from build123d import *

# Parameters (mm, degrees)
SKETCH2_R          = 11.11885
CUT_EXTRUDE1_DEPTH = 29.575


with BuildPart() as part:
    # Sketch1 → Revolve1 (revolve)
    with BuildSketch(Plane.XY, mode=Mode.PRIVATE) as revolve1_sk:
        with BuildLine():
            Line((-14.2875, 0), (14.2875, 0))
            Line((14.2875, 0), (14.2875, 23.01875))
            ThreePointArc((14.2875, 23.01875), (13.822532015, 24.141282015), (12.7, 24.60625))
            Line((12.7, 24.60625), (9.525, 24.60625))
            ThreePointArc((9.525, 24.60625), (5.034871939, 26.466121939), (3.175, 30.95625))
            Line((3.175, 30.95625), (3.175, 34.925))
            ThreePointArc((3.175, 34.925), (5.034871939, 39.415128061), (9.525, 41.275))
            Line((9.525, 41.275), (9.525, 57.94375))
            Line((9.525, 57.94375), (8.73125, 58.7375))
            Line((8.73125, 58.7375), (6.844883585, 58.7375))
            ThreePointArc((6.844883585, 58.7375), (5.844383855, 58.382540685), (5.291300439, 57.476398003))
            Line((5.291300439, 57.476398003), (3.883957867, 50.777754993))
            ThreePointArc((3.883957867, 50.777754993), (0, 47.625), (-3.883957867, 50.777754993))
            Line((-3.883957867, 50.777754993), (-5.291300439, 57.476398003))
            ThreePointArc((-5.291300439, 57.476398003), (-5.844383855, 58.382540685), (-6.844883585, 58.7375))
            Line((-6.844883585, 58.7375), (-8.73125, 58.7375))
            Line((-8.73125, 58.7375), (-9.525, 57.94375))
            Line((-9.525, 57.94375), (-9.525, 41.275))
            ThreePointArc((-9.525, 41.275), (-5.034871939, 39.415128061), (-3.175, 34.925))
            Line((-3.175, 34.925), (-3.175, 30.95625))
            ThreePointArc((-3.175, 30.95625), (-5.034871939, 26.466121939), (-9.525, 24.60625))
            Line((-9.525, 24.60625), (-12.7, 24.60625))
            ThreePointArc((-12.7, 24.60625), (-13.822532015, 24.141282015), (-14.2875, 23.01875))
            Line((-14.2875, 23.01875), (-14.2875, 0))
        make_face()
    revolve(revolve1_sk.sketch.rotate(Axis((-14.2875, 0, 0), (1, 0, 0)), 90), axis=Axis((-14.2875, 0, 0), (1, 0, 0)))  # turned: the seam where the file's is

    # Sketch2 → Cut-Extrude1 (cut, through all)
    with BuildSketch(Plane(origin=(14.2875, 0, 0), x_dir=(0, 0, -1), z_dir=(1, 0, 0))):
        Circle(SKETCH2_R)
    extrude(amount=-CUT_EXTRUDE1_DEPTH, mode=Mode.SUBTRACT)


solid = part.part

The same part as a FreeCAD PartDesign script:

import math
import FreeCAD as App
import Part
import Sketcher

V = App.Vector
Q = App.Units.Quantity

doc = App.newDocument("Part")
body = doc.addObject("PartDesign::Body", "Body")

# Sketch on XY plane
sketch1 = doc.addObject("Sketcher::SketchObject", "Sketch")
body.addObject(sketch1)
sketch1.AttachmentSupport = (doc.XY_Plane, [""])
sketch1.MapMode = "FlatFace"
sketch1.addGeometry([
    Part.LineSegment(V(-14.2875, 0, 0), V(14.2875, 0, 0)),  # 0
    Part.LineSegment(V(14.2875, 0, 0), V(14.2875, 23.01875, 0)),  # 1
    Part.ArcOfCircle(Part.Circle(V(12.7, 23.01875, 0), V(0, 0, 1), 1.5875), math.radians(0), math.radians(90)),  # 2
    Part.LineSegment(V(12.7, 24.60625, 0), V(9.525, 24.60625, 0)),  # 3
    Part.ArcOfCircle(Part.Circle(V(9.525, 30.95625, 0), V(0, 0, 1), 6.35), math.radians(180), math.radians(270)),  # 4
    Part.LineSegment(V(3.175, 30.95625, 0), V(3.175, 34.925, 0)),  # 5
    Part.ArcOfCircle(Part.Circle(V(9.525, 34.925, 0), V(0, 0, 1), 6.35), math.radians(90), math.radians(180)),  # 6
    Part.LineSegment(V(9.525, 41.275, 0), V(9.525, 57.94375, 0)),  # 7
    Part.LineSegment(V(9.525, 57.94375, 0), V(8.73125, 58.7375, 0)),  # 8
    Part.LineSegment(V(8.73125, 58.7375, 0), V(6.844884, 58.7375, 0)),  # 9
    Part.ArcOfCircle(Part.Circle(V(6.844884, 57.15, 0), V(0, 0, 1), 1.5875), math.radians(90), math.radians(168.13508)),  # 10
    Part.LineSegment(V(5.2913, 57.476398, 0), V(3.883958, 50.777755, 0)),  # 11
    Part.ArcOfCircle(Part.Circle(V(0, 51.59375, 0), V(0, 0, 1), 3.96875), math.radians(-168.13508), math.radians(-11.86492)),  # 12
    Part.LineSegment(V(-3.883958, 50.777755, 0), V(-5.2913, 57.476398, 0)),  # 13
    Part.ArcOfCircle(Part.Circle(V(-6.844884, 57.15, 0), V(0, 0, 1), 1.5875), math.radians(11.86492), math.radians(90)),  # 14
    Part.LineSegment(V(-6.844884, 58.7375, 0), V(-8.73125, 58.7375, 0)),  # 15
    Part.LineSegment(V(-8.73125, 58.7375, 0), V(-9.525, 57.94375, 0)),  # 16
    Part.LineSegment(V(-9.525, 57.94375, 0), V(-9.525, 41.275, 0)),  # 17
    Part.ArcOfCircle(Part.Circle(V(-9.525, 34.925, 0), V(0, 0, 1), 6.35), math.radians(0), math.radians(90)),  # 18
    Part.LineSegment(V(-3.175, 34.925, 0), V(-3.175, 30.95625, 0)),  # 19
    Part.ArcOfCircle(Part.Circle(V(-9.525, 30.95625, 0), V(0, 0, 1), 6.35), math.radians(-90), math.radians(0)),  # 20
    Part.LineSegment(V(-9.525, 24.60625, 0), V(-12.7, 24.60625, 0)),  # 21
    Part.ArcOfCircle(Part.Circle(V(-12.7, 23.01875, 0), V(0, 0, 1), 1.5875), math.radians(90), math.radians(180)),  # 22
    Part.LineSegment(V(-14.2875, 23.01875, 0), V(-14.2875, 0, 0)),  # 23
], False)
sketch1.addConstraint([
    Sketcher.Constraint("Coincident", 0, 2, 1, 1),
    Sketcher.Constraint("Tangent", 1, 2, 2, 1),
    Sketcher.Constraint("Tangent", 2, 2, 3, 1),
    Sketcher.Constraint("Tangent", 3, 2, 4, 2),
    Sketcher.Constraint("Tangent", 4, 1, 5, 1),
    Sketcher.Constraint("Tangent", 5, 2, 6, 2),
    Sketcher.Constraint("Coincident", 6, 1, 7, 1),
    Sketcher.Constraint("Coincident", 7, 2, 8, 1),
    Sketcher.Constraint("Coincident", 8, 2, 9, 1),
    Sketcher.Constraint("Tangent", 9, 2, 10, 1),
    Sketcher.Constraint("Tangent", 10, 2, 11, 1),
    Sketcher.Constraint("Tangent", 11, 2, 12, 2),
    Sketcher.Constraint("Tangent", 12, 1, 13, 1),
    Sketcher.Constraint("Tangent", 13, 2, 14, 1),
    Sketcher.Constraint("Tangent", 14, 2, 15, 1),
    Sketcher.Constraint("Coincident", 15, 2, 16, 1),
    Sketcher.Constraint("Coincident", 16, 2, 17, 1),
    Sketcher.Constraint("Coincident", 17, 2, 18, 2),
    Sketcher.Constraint("Tangent", 18, 1, 19, 1),
    Sketcher.Constraint("Tangent", 19, 2, 20, 2),
    Sketcher.Constraint("Tangent", 20, 1, 21, 1),
    Sketcher.Constraint("Tangent", 21, 2, 22, 1),
    Sketcher.Constraint("Tangent", 22, 2, 23, 1),
    Sketcher.Constraint("Coincident", 23, 2, 0, 1),
    Sketcher.Constraint("Horizontal", 0),
    Sketcher.Constraint("Vertical", 1),
    Sketcher.Constraint("Horizontal", 3),
    Sketcher.Constraint("Vertical", 5),
    Sketcher.Constraint("Vertical", 7),
    Sketcher.Constraint("Horizontal", 9),
    Sketcher.Constraint("Horizontal", 15),
    Sketcher.Constraint("Vertical", 17),
    Sketcher.Constraint("Vertical", 19),
    Sketcher.Constraint("Horizontal", 21),
    Sketcher.Constraint("Vertical", 23),
    Sketcher.Constraint("Equal", 4, 6),
    Sketcher.Constraint("Equal", 2, 10),
    Sketcher.Constraint("Equal", 10, 14),
    Sketcher.Constraint("Equal", 6, 18),
    Sketcher.Constraint("Equal", 18, 20),
    Sketcher.Constraint("Equal", 14, 22),
    Sketcher.Constraint("Symmetric", 0, 2, 23, 2, -1, 1),
    Sketcher.Constraint("Symmetric", 10, 3, 14, 3, -2),
    Sketcher.Constraint("Symmetric", 6, 3, 18, 3, -2),
    Sketcher.Constraint("Symmetric", 7, 2, 16, 2, -2),
    Sketcher.Constraint("PointOnObject", 12, 3, -2),
    Sketcher.Constraint("Perpendicular", 8, 16),
    Sketcher.Constraint("Horizontal", 4, 3, 20, 3),
    Sketcher.Constraint("Vertical", 3, 2, 6, 1),
    Sketcher.Constraint("Equal", 9, 15),
    Sketcher.Constraint("Radius", 4, Q("0.25 in")),
    Sketcher.Constraint("Radius", 2, Q("0.0625 in")),
    Sketcher.Constraint("Radius", 12, Q("0.15625 in")),
    Sketcher.Constraint("DistanceX", 22, 3, 2, 3, Q("1 in")),
    Sketcher.Constraint("DistanceX", 18, 3, 5, 2, Q("0.5 in")),
    Sketcher.Constraint("DistanceY", 1, 1, 1, 2, Q("0.90625 in")),
    Sketcher.Constraint("DistanceY", 5, 1, 5, 2, Q("0.15625 in")),
    Sketcher.Constraint("DistanceY", 7, 1, 7, 2, Q("0.65625 in")),
    Sketcher.Constraint("DistanceY", -1, 1, 10, 3, Q("2.25 in")),
    Sketcher.Constraint("DistanceY", 12, 3, 7, 2, Q("0.25 in")),
    Sketcher.Constraint("DistanceX", -1, 1, 10, 2, 5.2913),
])
revolution = doc.addObject("PartDesign::Revolution", "Revolution")
body.addObject(revolution)
revolution.Profile = sketch1
revolution.ReferenceAxis = (sketch1, ["H_Axis"])
revolution.Angle = 360

# Sketch on YZ plane
sketch2 = doc.addObject("Sketcher::SketchObject", "Sketch001")
body.addObject(sketch2)
sketch2.AttachmentSupport = (doc.YZ_Plane, [""])
sketch2.MapMode = "FlatFace"
sketch2.AttachmentOffset = App.Placement(V(0, 0, 0.5625 * 25.4), App.Rotation())
sketch2.addGeometry(Part.Circle(V(0, 0, 0), V(0, 0, 1), 11.11885), False)
sketch2.addConstraint([
    Sketcher.Constraint("Coincident", 0, 3, -1, 1),
    Sketcher.Constraint("Diameter", 0, Q("0.8755 in")),
])
pocket1 = doc.addObject("PartDesign::Pocket", "Pocket")
body.addObject(pocket1)
pocket1.Profile = sketch2
pocket1.Type = "ThroughAll"

doc.recompute()
